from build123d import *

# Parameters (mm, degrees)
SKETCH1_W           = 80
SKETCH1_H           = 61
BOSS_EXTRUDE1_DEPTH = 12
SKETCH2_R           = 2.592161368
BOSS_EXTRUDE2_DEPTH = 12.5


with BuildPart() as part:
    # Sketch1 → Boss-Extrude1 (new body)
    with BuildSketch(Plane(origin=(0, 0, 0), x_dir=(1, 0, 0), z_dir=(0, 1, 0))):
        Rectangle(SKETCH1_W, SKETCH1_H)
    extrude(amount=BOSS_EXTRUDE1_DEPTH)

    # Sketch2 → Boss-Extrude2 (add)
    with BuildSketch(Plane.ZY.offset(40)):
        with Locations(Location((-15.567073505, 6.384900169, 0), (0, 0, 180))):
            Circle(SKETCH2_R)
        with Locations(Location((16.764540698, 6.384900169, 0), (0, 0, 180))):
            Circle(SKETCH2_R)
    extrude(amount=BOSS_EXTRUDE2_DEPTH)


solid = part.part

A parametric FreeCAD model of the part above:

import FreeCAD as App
import Part
import Sketcher
from FreeCAD import Vector

doc = App.newDocument("Part")
body = doc.addObject("PartDesign::Body", "Body")

sketch1 = body.newObject("Sketcher::SketchObject", "Sketch")
sketch1.AttachmentSupport = (doc.getObject("XZ_Plane"), [""])
sketch1.MapMode = "FlatFace"
sketch1.addGeometry(Part.LineSegment(Vector(-40, -30, 0), Vector(-40, 30, 0)), False)
sketch1.addGeometry(Part.LineSegment(Vector(-40, 30, 0), Vector(40, 30, 0)), False)
sketch1.addGeometry(Part.LineSegment(Vector(40, 30, 0), Vector(40, -30, 0)), False)
sketch1.addGeometry(Part.LineSegment(Vector(40, -30, 0), Vector(-40, -30, 0)), False)
sketch1.addConstraint(Sketcher.Constraint("Coincident", 0, 2, 1, 1))
sketch1.addConstraint(Sketcher.Constraint("Coincident", 1, 2, 2, 1))
sketch1.addConstraint(Sketcher.Constraint("Coincident", 2, 2, 3, 1))
sketch1.addConstraint(Sketcher.Constraint("Coincident", 3, 2, 0, 1))
sketch1.addConstraint(Sketcher.Constraint("Vertical", 0))
sketch1.addConstraint(Sketcher.Constraint("Horizontal", 1))
sketch1.addConstraint(Sketcher.Constraint("Vertical", 2))
sketch1.addConstraint(Sketcher.Constraint("Horizontal", 3))
sketch1.addConstraint(Sketcher.Constraint("Symmetric", 0, 2, 2, 2, -1, 1))
sketch1.addConstraint(Sketcher.Constraint("DistanceX", 1, 1, 1, 2, 80.0))
sketch1.addConstraint(Sketcher.Constraint("DistanceY", 0, 1, 0, 2, 61.0))
pad1 = body.newObject("PartDesign::Pad", "Pad")
pad1.Profile = sketch1
pad1.Length = 12
pad1.Reversed = True

sketch2 = body.newObject("Sketcher::SketchObject", "Sketch001")
sketch2.AttachmentSupport = (doc.getObject("YZ_Plane"), [""])
sketch2.MapMode = "FlatFace"
sketch2.AttachmentOffset = App.Placement(Vector(0, 0, -40), App.Rotation())
sketch2.addGeometry(Part.Circle(Vector(6.4, -15.6, 0), Vector(0, 0, 1), 2.6), False)
sketch2.addGeometry(Part.Circle(Vector(6.4, 16.8, 0), Vector(0, 0, 1), 2.6), False)
sketch2.addConstraint(Sketcher.Constraint("Equal", 0, 1))
sketch2.addConstraint(Sketcher.Constraint("Vertical", 0, 3, 1, 3))
sketch2.addConstraint(Sketcher.Constraint("Diameter", 0, 5.184323))
sketch2.addConstraint(Sketcher.Constraint("DistanceX", -1, 1, 0, 3, 6.3849))
sketch2.addConstraint(Sketcher.Constraint("DistanceY", -1, 1, 1, 3, 16.764541))
sketch2.addConstraint(Sketcher.Constraint("DistanceY", 0, 3, -1, 1, 15.567074))
pad2 = body.newObject("PartDesign::Pad", "Pad001")
pad2.Profile = sketch2
pad2.Length = 12.5
pad2.Reversed = True

doc.recompute()
